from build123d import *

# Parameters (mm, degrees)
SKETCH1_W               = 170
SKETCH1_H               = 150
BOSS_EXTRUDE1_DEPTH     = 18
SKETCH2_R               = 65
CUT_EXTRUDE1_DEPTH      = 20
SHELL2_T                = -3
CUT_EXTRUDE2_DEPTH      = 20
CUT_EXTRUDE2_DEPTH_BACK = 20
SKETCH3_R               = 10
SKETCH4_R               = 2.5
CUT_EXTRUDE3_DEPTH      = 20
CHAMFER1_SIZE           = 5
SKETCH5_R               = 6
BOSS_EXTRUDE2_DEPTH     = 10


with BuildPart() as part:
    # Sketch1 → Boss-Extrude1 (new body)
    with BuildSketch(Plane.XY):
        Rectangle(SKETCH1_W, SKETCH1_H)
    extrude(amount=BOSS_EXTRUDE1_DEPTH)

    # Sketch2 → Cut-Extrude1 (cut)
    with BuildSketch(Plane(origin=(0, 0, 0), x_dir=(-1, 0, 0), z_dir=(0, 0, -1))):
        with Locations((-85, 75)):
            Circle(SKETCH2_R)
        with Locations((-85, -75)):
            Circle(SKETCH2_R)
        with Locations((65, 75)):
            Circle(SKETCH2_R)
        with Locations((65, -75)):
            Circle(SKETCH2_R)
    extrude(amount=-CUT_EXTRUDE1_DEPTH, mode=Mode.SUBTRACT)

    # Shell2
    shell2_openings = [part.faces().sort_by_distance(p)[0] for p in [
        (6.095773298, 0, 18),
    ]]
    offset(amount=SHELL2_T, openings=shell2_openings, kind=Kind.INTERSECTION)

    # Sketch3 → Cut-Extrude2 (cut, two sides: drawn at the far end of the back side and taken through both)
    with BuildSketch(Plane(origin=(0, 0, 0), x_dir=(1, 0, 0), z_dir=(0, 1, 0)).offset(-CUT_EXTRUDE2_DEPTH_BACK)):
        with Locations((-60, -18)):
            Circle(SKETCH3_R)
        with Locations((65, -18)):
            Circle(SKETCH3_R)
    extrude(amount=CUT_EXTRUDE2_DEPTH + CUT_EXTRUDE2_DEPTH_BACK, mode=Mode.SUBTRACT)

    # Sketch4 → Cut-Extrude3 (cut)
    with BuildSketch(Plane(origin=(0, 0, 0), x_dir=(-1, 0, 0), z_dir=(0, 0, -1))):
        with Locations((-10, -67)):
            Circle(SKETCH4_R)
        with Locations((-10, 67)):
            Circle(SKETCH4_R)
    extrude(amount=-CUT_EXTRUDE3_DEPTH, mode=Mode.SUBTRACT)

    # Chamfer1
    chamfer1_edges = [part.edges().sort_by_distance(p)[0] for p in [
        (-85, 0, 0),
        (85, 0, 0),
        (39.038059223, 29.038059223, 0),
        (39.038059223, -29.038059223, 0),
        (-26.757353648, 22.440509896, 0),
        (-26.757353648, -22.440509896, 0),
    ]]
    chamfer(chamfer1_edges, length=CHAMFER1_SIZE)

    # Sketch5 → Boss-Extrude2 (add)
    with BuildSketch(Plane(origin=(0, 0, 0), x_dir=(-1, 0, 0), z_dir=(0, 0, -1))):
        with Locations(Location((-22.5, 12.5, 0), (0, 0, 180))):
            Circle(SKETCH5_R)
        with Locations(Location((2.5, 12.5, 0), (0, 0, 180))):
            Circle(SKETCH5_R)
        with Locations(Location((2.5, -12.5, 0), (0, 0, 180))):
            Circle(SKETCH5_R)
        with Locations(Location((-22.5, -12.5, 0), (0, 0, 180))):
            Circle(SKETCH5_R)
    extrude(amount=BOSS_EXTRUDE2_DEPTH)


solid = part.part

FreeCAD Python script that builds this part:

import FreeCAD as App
import Part
import Sketcher
from FreeCAD import Vector
Q = App.Units.Quantity


def edges_at(feature, points):
    """Names of the edges that pass closest to the given points."""
    edges = feature.Shape.Edges
    near = lambda p: min(range(len(edges)), key=lambda i: edges[i].distToShape(Part.Vertex(*p))[0])
    return sorted({f"Edge{near(p) + 1}" for p in points})


def faces_at(feature, points):
    """Names of the faces that lie closest to the given points."""
    faces = feature.Shape.Faces
    near = lambda p: min(range(len(faces)), key=lambda i: faces[i].distToShape(Part.Vertex(*p))[0])
    return sorted({f"Face{near(p) + 1}" for p in points})

doc = App.newDocument("Part")
body = doc.addObject("PartDesign::Body", "Body")

# Sketch on XY plane
sketch1 = body.newObject("Sketcher::SketchObject", "Sketch")
sketch1.AttachmentSupport = (doc.getObject("XY_Plane"), [""])
sketch1.MapMode = "FlatFace"
sketch1.addGeometry([
    Part.LineSegment(Vector(-85, 75, 0), Vector(-85, -75, 0)),
    Part.LineSegment(Vector(-85, -75, 0), Vector(85, -75, 0)),
    Part.LineSegment(Vector(85, -75, 0), Vector(85, 75, 0)),
    Part.LineSegment(Vector(85, 75, 0), Vector(-85, 75, 0)),
], False)
sketch1.addConstraint([
    Sketcher.Constraint("Coincident", 0, 2, 1, 1),
    Sketcher.Constraint("Coincident", 1, 2, 2, 1),
    Sketcher.Constraint("Coincident", 2, 2, 3, 1),
    Sketcher.Constraint("Coincident", 3, 2, 0, 1),
    Sketcher.Constraint("Vertical", 0),
    Sketcher.Constraint("Horizontal", 1),
    Sketcher.Constraint("Vertical", 2),
    Sketcher.Constraint("Horizontal", 3),
    Sketcher.Constraint("Symmetric", 0, 2, 2, 2, -1, 1),
    Sketcher.Constraint("DistanceX", 1, 1, 1, 2, Q("170 mm")),
    Sketcher.Constraint("DistanceY", 0, 2, 0, 1, Q("150 mm")),
])
pad1 = body.newObject("PartDesign::Pad", "Pad")
pad1.Profile = sketch1
pad1.Length = 18

# Sketch on XY plane
sketch2 = body.newObject("Sketcher::SketchObject", "Sketch001")
sketch2.AttachmentSupport = (doc.getObject("XY_Plane"), [""])
sketch2.MapMode = "FlatFace"
sketch2.addGeometry([
    Part.Circle(Vector(85, 75, 0), Vector(0, 0, 1), 65),
    Part.Circle(Vector(85, -75, 0), Vector(0, 0, 1), 65),
    Part.Circle(Vector(-65, 75, 0), Vector(0, 0, 1), 65),
    Part.Circle(Vector(-65, -75, 0), Vector(0, 0, 1), 65),
], False)
sketch2.addConstraint([
    Sketcher.Constraint("Equal", 0, 1),
    Sketcher.Constraint("Equal", 1, 2),
    Sketcher.Constraint("Equal", 2, 3),
    Sketcher.Constraint("Symmetric", 0, 3, 1, 3, -1),
    Sketcher.Constraint("Symmetric", 2, 3, 3, 3, -1),
    Sketcher.Constraint("Horizontal", 0, 3, 2, 3),
    Sketcher.Constraint("Diameter", 0, Q("130 mm")),
    Sketcher.Constraint("DistanceX", -1, 1, 0, 3, Q("85 mm")),
    Sketcher.Constraint("DistanceY", -1, 1, 0, 3, Q("75 mm")),
    Sketcher.Constraint("DistanceX", 2, 3, -1, 1, Q("65 mm")),
])
pocket1 = body.newObject("PartDesign::Pocket", "Pocket")
pocket1.Profile = sketch2
pocket1.Length = 20
pocket1.Reversed = True
doc.recompute()

thickness = body.newObject("PartDesign::Thickness", "Thickness")
thickness.Base = (pocket1, faces_at(pocket1, [(0, 0, 18)]))
thickness.Value = 3
thickness.Reversed = True
thickness.Join = "Intersection"

# Sketch on XZ plane
sketch3 = body.newObject("Sketcher::SketchObject", "Sketch002")
sketch3.AttachmentSupport = (doc.getObject("XZ_Plane"), [""])
sketch3.MapMode = "FlatFace"
sketch3.addGeometry([
    Part.Circle(Vector(-60, 18, 0), Vector(0, 0, 1), 10),
    Part.Circle(Vector(65, 18, 0), Vector(0, 0, 1), 10),
], False)
sketch3.addConstraint([
    Sketcher.Constraint("Equal", 0, 1),
    Sketcher.Constraint("Horizontal", 0, 3, 1, 3),
    Sketcher.Constraint("Diameter", 0, Q("20 mm")),
    Sketcher.Constraint("DistanceX", 0, 3, -1, 1, Q("60 mm")),
    Sketcher.Constraint("DistanceY", -1, 1, 0, 3, Q("18 mm")),
    Sketcher.Constraint("DistanceX", -1, 1, 1, 3, Q("65 mm")),
])
pocket2 = body.newObject("PartDesign::Pocket", "Pocket001")
pocket2.Profile = sketch3
pocket2.Type = "ThroughAll"
pocket2.Midplane = True

# Sketch on XY plane
sketch4 = body.newObject("Sketcher::SketchObject", "Sketch003")
sketch4.AttachmentSupport = (doc.getObject("XY_Plane"), [""])
sketch4.MapMode = "FlatFace"
sketch4.addGeometry([
    Part.Circle(Vector(10, -67, 0), Vector(0, 0, 1), 2.5),
    Part.Circle(Vector(10, 67, 0), Vector(0, 0, 1), 2.5),
], False)
sketch4.addConstraint([
    Sketcher.Constraint("Equal", 0, 1),
    Sketcher.Constraint("Symmetric", 0, 3, 1, 3, -1),
    Sketcher.Constraint("Diameter", 0, Q("5 mm")),
    Sketcher.Constraint("DistanceX", -1, 1, 0, 3, Q("10 mm")),
    Sketcher.Constraint("DistanceY", 0, 3, -1, 1, Q("67 mm")),
])
pocket3 = body.newObject("PartDesign::Pocket", "Pocket002")
pocket3.Profile = sketch4
pocket3.Length = 20
pocket3.Reversed = True
doc.recompute()

chamfer = body.newObject("PartDesign::Chamfer", "Chamfer")
chamfer.Base = (pocket3, edges_at(pocket3, [
    (-85, 0, 0),
    (85, 0, 0),
    (39.038, 29.038, 0),
    (39.038, -29.038, 0),
    (-26.757, 22.441, 0),
    (-26.757, -22.441, 0),
]))
chamfer.Size = 5

# Sketch on XY plane
sketch5 = body.newObject("Sketcher::SketchObject", "Sketch004")
sketch5.AttachmentSupport = (doc.getObject("XY_Plane"), [""])
sketch5.MapMode = "FlatFace"
sketch5.addGeometry([
    Part.Circle(Vector(22, 12, 0), Vector(0, 0, 1), 6),
    Part.Circle(Vector(-2, 12, 0), Vector(0, 0, 1), 6),
    Part.Circle(Vector(-2, -12, 0), Vector(0, 0, 1), 6),
    Part.Circle(Vector(22, -12, 0), Vector(0, 0, 1), 6),
], False)
sketch5.addConstraint([
    Sketcher.Constraint("Equal", 0, 1),
    Sketcher.Constraint("Equal", 1, 2),
    Sketcher.Constraint("Equal", 2, 3),
    Sketcher.Constraint("Symmetric", 1, 3, 2, 3, -1),
    Sketcher.Constraint("Symmetric", 0, 3, 3, 3, -1),
    Sketcher.Constraint("Horizontal", 0, 3, 1, 3),
    Sketcher.Constraint("Diameter", 0, Q("12 mm")),
    Sketcher.Constraint("DistanceX", 1, 3, 0, 3, Q("25 mm")),
    Sketcher.Constraint("DistanceY", 2, 3, 1, 3, Q("25 mm")),
    Sketcher.Constraint("DistanceX", -1, 1, 0, 3, Q("22.5 mm")),
])
pad2 = body.newObject("PartDesign::Pad", "Pad001")
pad2.Profile = sketch5
pad2.Length = 10
pad2.Reversed = True

doc.recompute()
